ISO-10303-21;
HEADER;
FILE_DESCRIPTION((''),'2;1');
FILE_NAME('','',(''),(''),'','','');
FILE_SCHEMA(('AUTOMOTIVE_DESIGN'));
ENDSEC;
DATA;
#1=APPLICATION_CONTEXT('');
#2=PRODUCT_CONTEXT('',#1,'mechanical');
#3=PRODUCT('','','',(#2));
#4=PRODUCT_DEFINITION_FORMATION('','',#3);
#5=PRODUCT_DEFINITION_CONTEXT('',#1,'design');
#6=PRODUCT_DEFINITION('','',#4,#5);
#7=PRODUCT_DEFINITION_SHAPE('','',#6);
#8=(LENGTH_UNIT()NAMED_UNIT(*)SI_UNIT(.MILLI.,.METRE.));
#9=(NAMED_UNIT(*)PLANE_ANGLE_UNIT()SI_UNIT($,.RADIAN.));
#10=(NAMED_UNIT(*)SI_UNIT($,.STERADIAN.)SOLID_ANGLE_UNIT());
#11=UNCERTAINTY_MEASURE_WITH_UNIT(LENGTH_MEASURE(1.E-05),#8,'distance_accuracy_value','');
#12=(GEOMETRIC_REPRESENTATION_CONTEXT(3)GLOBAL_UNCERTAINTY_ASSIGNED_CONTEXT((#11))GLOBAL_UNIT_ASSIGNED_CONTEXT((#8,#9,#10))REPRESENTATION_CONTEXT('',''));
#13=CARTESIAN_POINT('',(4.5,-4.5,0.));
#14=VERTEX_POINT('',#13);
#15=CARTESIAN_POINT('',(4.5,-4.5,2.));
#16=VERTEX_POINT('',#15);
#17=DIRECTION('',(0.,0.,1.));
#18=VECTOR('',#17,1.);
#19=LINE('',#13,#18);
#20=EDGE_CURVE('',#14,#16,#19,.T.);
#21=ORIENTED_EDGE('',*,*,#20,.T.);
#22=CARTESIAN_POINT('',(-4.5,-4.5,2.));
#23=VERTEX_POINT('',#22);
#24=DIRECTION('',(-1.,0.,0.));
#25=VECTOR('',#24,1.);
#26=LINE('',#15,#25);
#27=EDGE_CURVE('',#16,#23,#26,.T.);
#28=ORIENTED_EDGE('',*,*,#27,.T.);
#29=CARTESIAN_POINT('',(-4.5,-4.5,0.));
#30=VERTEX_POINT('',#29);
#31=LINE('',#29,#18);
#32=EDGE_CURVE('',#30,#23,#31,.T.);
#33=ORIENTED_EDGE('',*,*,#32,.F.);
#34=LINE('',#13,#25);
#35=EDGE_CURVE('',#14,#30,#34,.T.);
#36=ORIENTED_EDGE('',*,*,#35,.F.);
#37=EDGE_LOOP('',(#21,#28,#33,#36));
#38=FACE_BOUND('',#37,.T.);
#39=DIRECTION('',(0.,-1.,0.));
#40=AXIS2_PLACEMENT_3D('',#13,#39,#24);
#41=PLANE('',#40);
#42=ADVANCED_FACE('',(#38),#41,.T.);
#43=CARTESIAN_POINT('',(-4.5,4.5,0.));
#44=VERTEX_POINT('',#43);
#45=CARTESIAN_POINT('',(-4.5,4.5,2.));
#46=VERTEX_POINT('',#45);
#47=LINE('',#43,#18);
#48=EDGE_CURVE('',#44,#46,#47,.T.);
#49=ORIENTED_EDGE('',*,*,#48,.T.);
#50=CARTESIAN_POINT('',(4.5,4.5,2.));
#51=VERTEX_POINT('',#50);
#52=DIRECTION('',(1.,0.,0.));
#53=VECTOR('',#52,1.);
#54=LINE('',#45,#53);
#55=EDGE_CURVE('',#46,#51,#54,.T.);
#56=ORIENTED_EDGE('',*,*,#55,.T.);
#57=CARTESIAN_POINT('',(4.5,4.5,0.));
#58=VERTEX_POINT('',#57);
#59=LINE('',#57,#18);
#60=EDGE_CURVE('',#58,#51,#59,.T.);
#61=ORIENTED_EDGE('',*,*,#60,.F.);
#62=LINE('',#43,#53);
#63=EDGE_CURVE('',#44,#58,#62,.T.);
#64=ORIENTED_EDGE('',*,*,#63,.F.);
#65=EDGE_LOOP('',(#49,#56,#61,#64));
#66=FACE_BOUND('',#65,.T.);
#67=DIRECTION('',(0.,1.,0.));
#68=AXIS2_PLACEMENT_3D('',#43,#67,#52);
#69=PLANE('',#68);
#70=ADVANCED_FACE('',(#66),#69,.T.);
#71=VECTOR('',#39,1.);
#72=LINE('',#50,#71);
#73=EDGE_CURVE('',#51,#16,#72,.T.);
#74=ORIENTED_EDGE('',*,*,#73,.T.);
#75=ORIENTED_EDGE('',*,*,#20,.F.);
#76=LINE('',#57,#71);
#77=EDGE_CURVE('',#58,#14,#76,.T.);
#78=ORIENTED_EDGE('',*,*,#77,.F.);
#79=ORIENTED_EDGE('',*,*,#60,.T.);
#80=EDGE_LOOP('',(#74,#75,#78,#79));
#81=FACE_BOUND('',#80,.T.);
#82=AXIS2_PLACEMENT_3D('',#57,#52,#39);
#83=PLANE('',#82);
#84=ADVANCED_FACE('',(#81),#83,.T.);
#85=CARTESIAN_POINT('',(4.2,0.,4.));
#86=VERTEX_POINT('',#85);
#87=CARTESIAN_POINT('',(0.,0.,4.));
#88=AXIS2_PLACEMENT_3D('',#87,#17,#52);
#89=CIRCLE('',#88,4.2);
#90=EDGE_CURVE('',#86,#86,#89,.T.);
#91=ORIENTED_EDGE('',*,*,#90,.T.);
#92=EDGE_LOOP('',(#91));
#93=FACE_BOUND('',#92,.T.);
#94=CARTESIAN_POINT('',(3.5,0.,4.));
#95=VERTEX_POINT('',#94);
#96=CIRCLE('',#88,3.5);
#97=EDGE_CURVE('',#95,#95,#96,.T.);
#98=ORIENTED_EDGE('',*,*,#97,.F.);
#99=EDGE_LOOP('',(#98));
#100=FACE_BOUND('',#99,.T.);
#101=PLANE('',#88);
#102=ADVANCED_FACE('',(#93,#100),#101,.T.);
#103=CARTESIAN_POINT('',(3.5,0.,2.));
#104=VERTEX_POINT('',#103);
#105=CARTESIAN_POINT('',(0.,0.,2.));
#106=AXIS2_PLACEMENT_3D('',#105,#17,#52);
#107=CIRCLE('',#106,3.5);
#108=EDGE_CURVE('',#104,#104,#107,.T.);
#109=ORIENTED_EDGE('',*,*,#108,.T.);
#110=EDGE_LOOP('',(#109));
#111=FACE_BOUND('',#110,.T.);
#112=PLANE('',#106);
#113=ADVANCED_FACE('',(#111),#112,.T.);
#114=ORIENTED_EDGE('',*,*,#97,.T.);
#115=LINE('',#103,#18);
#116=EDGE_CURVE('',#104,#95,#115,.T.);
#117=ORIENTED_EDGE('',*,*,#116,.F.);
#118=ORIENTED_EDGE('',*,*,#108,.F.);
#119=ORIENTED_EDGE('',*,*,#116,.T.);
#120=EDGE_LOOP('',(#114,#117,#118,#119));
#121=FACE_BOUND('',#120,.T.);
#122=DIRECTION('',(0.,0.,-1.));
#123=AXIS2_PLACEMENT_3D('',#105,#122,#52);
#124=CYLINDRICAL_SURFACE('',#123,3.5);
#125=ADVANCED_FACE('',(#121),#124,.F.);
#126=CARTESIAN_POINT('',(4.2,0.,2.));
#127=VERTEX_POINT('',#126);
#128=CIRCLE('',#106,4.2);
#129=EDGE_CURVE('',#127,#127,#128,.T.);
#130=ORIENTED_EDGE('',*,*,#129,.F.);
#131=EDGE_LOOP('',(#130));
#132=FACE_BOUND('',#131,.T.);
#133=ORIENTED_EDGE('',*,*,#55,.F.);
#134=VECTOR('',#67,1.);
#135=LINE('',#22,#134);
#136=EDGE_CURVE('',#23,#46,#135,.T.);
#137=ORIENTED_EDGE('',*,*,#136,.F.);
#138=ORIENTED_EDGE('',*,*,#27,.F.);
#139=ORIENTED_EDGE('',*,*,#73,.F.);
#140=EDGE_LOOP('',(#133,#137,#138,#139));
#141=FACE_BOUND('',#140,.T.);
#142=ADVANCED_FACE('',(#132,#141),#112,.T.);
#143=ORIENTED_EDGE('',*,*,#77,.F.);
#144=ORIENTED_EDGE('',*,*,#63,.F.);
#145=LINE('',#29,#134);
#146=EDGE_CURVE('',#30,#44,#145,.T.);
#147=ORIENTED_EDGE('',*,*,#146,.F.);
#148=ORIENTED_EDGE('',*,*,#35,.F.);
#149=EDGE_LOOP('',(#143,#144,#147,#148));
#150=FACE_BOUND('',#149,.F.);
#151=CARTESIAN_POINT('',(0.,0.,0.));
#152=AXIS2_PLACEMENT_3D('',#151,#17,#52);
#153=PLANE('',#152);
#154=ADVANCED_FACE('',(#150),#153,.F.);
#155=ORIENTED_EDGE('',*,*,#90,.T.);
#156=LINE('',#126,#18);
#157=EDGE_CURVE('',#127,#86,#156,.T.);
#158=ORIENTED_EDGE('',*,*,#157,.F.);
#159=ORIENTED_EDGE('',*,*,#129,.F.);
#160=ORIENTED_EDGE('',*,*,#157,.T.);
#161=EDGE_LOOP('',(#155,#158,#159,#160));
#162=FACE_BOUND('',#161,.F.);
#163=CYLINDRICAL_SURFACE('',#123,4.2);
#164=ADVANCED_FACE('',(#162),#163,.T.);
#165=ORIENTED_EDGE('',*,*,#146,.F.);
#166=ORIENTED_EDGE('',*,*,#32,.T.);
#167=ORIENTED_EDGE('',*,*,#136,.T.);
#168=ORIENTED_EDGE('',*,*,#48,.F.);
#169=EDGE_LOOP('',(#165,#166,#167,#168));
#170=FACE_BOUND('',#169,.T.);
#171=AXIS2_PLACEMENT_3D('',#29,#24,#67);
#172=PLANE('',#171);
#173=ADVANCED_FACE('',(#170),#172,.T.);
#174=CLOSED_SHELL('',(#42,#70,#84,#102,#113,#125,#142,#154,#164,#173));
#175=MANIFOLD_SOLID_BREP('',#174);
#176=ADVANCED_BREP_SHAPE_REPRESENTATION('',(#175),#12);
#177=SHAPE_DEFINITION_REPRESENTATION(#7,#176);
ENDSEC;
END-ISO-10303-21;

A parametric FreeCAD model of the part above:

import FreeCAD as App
import Part
import Sketcher
from FreeCAD import Vector
Q = App.Units.Quantity


def add_polygon(sketch, points):
    """Adds a closed chain of lines whose ends are joined by coincident constraints."""
    first, n = sketch.GeometryCount, len(points)
    for a, b in zip(points, points[1:] + points[:1]):
        sketch.addGeometry(Part.LineSegment(App.Vector(*a, 0), App.Vector(*b, 0)), False)
    for i in range(n):
        sketch.addConstraint(Sketcher.Constraint("Coincident", first + i, 2, first + (i + 1) % n, 1))

doc = App.newDocument("Part")
params = doc.addObject("Spreadsheet::Sheet", "Params")
for row, (alias, value) in enumerate([
    ("sketch1_width", "9 mm"),
    ("pad1_length", "2 mm"),
    ("sketch2_diameter", "7 mm"),
    ("sketch2_diameter2", "8.4 mm"),
    ("pad2_length", "2 mm"),
], start=1):
    params.set(f"A{row}", alias)
    params.set(f"B{row}", "=" + value)
    params.setAlias(f"B{row}", alias)

body = doc.addObject("PartDesign::Body", "Body")

# Sketch on XY plane
sketch1 = doc.addObject("Sketcher::SketchObject", "Sketch")
body.addObject(sketch1)
sketch1.AttachmentSupport = (doc.XY_Plane, [""])
sketch1.MapMode = "FlatFace"
add_polygon(sketch1, [(-4, -4), (4, -4), (4, 4), (-4, 4)])  # lines 0-3
sketch1.addConstraint([
    Sketcher.Constraint("Horizontal", 0),
    Sketcher.Constraint("Vertical", 1),
    Sketcher.Constraint("Horizontal", 2),
    Sketcher.Constraint("Vertical", 3),
    Sketcher.Constraint("Symmetric", 0, 2, 2, 2, -1, 1),
    Sketcher.Constraint("Equal", 2, 1),
    Sketcher.Constraint("DistanceX", 0, 1, 0, 2, Q("9 mm")),
])
sketch1.setExpression("Constraints[10]", "Params.sketch1_width")
pad1 = doc.addObject("PartDesign::Pad", "Pad")
body.addObject(pad1)
pad1.Profile = sketch1
pad1.setExpression("Length", "Params.pad1_length")

# Sketch on XY plane
sketch2 = doc.addObject("Sketcher::SketchObject", "Sketch001")
body.addObject(sketch2)
sketch2.AttachmentSupport = (doc.XY_Plane, [""])
sketch2.MapMode = "FlatFace"
sketch2.AttachmentOffset = App.Placement(Vector(0, 0, 2), App.Rotation())
sketch2.addGeometry([
    Part.Circle(Vector(0, 0, 0), Vector(0, 0, 1), 4.2),
    Part.Circle(Vector(0, 0, 0), Vector(0, 0, 1), 3.5),
], False)
sketch2.addConstraint([
    Sketcher.Constraint("Coincident", 0, 3, -1, 1),
    Sketcher.Constraint("Coincident", 1, 3, -1, 1),
    Sketcher.Constraint("Diameter", 1, Q("7 mm")),
    Sketcher.Constraint("Diameter", 0, Q("8.4 mm")),
])
sketch2.setExpression("Constraints[2]", "Params.sketch2_diameter")
sketch2.setExpression("Constraints[3]", "Params.sketch2_diameter2")
pad2 = doc.addObject("PartDesign::Pad", "Pad001")
body.addObject(pad2)
pad2.Profile = sketch2
pad2.setExpression("Length", "Params.pad2_length")

doc.recompute()
